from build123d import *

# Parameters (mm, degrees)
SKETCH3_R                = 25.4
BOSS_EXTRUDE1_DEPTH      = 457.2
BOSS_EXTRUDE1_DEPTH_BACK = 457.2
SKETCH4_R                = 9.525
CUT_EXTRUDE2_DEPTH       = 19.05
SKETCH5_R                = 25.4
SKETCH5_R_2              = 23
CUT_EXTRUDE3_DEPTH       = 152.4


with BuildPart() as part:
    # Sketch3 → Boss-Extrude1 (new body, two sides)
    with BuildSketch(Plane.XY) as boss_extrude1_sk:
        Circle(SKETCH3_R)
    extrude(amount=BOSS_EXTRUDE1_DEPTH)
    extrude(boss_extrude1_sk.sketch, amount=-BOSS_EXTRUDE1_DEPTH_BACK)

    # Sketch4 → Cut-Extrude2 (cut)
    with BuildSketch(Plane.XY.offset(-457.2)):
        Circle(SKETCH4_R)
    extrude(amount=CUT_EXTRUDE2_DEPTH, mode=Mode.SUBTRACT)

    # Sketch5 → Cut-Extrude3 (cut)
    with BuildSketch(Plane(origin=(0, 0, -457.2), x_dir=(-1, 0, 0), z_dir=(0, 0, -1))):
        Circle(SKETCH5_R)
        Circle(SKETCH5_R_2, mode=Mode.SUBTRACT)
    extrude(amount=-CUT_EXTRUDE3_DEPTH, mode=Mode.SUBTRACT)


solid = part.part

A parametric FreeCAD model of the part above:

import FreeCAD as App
import Part
import Sketcher
Q = App.Units.Quantity

doc = App.newDocument("Part")
body = doc.addObject("PartDesign::Body", "Body")

# Sketch on XY plane
sketch1 = body.newObject("Sketcher::SketchObject", "Sketch")
sketch1.AttachmentSupport = (doc.getObject("XY_Plane"), [""])
sketch1.MapMode = "FlatFace"
sketch1.addGeometry(Part.Circle(App.Vector(0, 0, 0), App.Vector(0, 0, 1), 25), False)
sketch1.addConstraint([
    Sketcher.Constraint("Coincident", 0, 3, -1, 1),
    Sketcher.Constraint("Diameter", 0, Q("2 in")),
])
pad1 = body.newObject("PartDesign::Pad", "Pad")
pad1.Profile = sketch1
pad1.Type = "TwoLengths"
pad1.Length = Q("18 in")
pad1.Length2 = Q("18 in")

# Sketch on XY plane
sketch2 = body.newObject("Sketcher::SketchObject", "Sketch001")
sketch2.AttachmentSupport = (doc.getObject("XY_Plane"), [""])
sketch2.MapMode = "FlatFace"
sketch2.AttachmentOffset = App.Placement(App.Vector(0, 0, -18 * 25.4), App.Rotation())
sketch2.addGeometry(Part.Circle(App.Vector(0, 0, 0), App.Vector(0, 0, 1), 10), False)
sketch2.addConstraint([
    Sketcher.Constraint("Coincident", 0, 3, -1, 1),
    Sketcher.Constraint("Diameter", 0, Q("0.75 in")),
])
pocket1 = body.newObject("PartDesign::Pocket", "Pocket")
pocket1.Profile = sketch2
pocket1.Length = Q("0.75 in")
pocket1.Reversed = True

# Sketch on XY plane
sketch3 = body.newObject("Sketcher::SketchObject", "Sketch002")
sketch3.AttachmentSupport = (doc.getObject("XY_Plane"), [""])
sketch3.MapMode = "FlatFace"
sketch3.AttachmentOffset = App.Placement(App.Vector(0, 0, -18 * 25.4), App.Rotation())
sketch3.addGeometry([
    Part.Circle(App.Vector(0, 0, 0), App.Vector(0, 0, 1), 25),
    Part.Circle(App.Vector(0, 0, 0), App.Vector(0, 0, 1), 23),
], False)
sketch3.addConstraint([
    Sketcher.Constraint("Coincident", 0, 3, -1, 1),
    Sketcher.Constraint("Coincident", 1, 3, -1, 1),
    Sketcher.Constraint("Diameter", 0, Q("2 in")),
    Sketcher.Constraint("Diameter", 1, 46.0),
])
pocket2 = body.newObject("PartDesign::Pocket", "Pocket001")
pocket2.Profile = sketch3
pocket2.Length = Q("6 in")
pocket2.Reversed = True

doc.recompute()
